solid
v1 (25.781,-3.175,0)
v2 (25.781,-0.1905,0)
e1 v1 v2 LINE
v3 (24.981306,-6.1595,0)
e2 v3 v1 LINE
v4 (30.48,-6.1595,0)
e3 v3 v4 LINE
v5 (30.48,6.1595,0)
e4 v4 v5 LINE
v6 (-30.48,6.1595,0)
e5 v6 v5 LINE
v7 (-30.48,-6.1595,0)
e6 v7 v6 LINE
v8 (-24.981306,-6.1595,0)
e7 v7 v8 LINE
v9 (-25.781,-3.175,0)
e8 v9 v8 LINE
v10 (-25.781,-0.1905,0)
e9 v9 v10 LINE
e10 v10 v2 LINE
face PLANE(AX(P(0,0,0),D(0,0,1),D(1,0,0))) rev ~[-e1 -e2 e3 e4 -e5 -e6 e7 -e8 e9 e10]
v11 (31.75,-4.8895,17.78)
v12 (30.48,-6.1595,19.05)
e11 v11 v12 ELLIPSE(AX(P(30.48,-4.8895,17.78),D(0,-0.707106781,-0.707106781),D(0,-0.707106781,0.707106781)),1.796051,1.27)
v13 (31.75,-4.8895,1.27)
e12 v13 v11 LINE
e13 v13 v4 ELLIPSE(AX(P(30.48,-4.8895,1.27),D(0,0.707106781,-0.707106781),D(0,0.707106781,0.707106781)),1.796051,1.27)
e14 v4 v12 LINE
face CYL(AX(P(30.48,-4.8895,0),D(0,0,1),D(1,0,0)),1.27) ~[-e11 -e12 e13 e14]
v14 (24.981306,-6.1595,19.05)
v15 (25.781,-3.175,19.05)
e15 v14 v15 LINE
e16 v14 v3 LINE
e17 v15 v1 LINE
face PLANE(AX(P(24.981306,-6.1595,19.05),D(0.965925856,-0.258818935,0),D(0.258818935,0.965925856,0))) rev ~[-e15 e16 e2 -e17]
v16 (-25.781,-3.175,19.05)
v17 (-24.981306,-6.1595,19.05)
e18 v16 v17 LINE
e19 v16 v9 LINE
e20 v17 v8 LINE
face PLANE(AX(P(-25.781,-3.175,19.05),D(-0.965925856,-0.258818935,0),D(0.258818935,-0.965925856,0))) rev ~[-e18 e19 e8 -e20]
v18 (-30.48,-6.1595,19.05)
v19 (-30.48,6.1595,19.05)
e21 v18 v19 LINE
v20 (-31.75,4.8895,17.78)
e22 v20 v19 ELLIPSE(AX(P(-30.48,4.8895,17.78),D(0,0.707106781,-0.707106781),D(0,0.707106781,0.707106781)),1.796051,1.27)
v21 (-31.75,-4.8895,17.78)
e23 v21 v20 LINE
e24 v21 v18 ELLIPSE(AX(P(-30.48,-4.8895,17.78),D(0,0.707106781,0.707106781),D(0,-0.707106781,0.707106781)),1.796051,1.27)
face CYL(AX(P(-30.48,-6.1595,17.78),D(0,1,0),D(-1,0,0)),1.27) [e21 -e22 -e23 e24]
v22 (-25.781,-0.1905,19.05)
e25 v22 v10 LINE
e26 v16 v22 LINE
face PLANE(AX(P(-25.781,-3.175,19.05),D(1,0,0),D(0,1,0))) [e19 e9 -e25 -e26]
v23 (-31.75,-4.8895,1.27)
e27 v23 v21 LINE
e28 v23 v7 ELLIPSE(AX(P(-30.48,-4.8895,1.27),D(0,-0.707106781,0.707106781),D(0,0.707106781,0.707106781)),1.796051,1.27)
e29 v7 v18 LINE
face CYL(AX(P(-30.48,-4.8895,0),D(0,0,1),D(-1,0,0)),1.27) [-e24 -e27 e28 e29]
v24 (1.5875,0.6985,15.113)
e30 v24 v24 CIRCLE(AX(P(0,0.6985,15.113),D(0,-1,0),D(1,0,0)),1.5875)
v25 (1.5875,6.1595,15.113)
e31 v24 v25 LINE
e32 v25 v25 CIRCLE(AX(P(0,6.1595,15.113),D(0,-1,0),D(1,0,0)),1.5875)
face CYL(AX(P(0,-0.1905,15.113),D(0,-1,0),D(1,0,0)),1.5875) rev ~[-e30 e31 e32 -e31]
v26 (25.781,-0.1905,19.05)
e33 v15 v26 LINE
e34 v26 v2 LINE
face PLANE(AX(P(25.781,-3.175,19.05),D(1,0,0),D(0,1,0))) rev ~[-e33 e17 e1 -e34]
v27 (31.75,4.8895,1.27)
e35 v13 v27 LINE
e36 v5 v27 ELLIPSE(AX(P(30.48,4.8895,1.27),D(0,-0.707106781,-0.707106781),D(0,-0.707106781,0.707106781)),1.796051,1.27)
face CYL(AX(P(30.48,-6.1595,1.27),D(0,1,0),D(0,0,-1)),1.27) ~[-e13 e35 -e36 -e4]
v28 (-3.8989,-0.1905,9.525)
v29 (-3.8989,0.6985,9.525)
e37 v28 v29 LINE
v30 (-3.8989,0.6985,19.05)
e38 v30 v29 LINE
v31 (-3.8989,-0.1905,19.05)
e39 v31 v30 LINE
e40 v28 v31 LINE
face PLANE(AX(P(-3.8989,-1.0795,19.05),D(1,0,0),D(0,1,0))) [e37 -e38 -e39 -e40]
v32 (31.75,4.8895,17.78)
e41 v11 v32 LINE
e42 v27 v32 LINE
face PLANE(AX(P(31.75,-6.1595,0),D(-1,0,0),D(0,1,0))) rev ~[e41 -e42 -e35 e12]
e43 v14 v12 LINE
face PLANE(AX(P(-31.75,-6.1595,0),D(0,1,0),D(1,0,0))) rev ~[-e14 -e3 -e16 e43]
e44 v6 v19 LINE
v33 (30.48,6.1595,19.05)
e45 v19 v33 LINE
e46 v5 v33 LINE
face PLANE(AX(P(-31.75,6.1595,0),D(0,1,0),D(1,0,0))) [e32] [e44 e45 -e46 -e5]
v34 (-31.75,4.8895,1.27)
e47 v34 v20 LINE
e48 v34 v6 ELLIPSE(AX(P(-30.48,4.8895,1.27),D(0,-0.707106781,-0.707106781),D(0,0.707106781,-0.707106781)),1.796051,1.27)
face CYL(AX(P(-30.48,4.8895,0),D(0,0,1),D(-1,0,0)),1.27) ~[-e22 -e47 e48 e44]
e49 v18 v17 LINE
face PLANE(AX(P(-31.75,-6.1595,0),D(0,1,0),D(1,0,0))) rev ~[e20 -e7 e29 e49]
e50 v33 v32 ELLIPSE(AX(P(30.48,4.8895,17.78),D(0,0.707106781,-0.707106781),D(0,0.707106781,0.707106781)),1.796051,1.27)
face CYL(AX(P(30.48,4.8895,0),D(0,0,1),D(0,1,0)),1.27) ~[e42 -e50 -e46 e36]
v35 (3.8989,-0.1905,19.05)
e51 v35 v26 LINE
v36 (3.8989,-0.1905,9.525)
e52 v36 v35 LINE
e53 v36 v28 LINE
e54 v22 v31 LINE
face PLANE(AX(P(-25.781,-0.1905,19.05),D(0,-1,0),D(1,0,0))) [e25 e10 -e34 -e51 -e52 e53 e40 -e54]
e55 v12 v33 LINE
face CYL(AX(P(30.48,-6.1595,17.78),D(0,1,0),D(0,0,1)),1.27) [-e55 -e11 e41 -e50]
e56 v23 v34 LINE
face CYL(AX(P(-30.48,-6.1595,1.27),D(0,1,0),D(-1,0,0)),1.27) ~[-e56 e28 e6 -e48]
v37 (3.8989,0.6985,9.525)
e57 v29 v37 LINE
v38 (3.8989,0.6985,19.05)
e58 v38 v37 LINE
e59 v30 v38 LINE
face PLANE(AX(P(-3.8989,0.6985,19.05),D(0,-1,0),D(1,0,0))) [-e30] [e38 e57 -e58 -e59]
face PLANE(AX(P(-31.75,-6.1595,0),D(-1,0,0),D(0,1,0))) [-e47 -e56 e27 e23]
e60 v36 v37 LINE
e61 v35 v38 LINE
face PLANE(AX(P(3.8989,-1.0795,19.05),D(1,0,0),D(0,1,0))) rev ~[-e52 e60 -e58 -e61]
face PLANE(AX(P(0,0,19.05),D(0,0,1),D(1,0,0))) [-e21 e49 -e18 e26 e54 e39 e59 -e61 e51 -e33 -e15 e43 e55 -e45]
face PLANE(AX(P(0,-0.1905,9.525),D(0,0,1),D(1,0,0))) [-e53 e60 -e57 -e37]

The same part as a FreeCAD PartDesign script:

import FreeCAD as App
import Part
import Sketcher
Q = App.Units.Quantity


def edges_at(feature, points):
    """Names of the edges that pass closest to the given points."""
    edges = feature.Shape.Edges
    near = lambda p: min(range(len(edges)), key=lambda i: edges[i].distToShape(Part.Vertex(*p))[0])
    return sorted({f"Edge{near(p) + 1}" for p in points})

doc = App.newDocument("Part")
params = doc.addObject("Spreadsheet::Sheet", "Params")
for row, (alias, value) in enumerate([
    ("sketch1_width", "2.5 in"),
    ("sketch1_height", "0.485 in"),
    ("pad1_length", "0.75 in"),
    ("sketch2_width", "2.03 in"),
    ("pocket1_length", "1 in"),
    ("sketch3_height", "0.07 in"),
    ("sketch3_width", "0.307 in"),
    ("pocket2_length", "0.375 in"),
    ("sketch4_diameter", "0.125 in"),
    ("pocket3_length", "1 in"),
    ("fillet_radius", "0.05 in"),
], start=1):
    params.set(f"A{row}", alias)
    params.set(f"B{row}", "=" + value)
    params.setAlias(f"B{row}", alias)

body = doc.addObject("PartDesign::Body", "Body")

# Sketch on XY plane
sketch1 = doc.addObject("Sketcher::SketchObject", "Sketch")
body.addObject(sketch1)
sketch1.AttachmentSupport = (doc.XY_Plane, [""])
sketch1.MapMode = "FlatFace"
sketch1.addGeometry([
    Part.LineSegment(App.Vector(-32, 6, 0), App.Vector(-32, -6, 0)),
    Part.LineSegment(App.Vector(-32, -6, 0), App.Vector(32, -6, 0)),
    Part.LineSegment(App.Vector(32, -6, 0), App.Vector(32, 6, 0)),
    Part.LineSegment(App.Vector(32, 6, 0), App.Vector(-32, 6, 0)),
], False)
sketch1.addConstraint([
    Sketcher.Constraint("Coincident", 0, 2, 1, 1),
    Sketcher.Constraint("Coincident", 1, 2, 2, 1),
    Sketcher.Constraint("Coincident", 2, 2, 3, 1),
    Sketcher.Constraint("Coincident", 3, 2, 0, 1),
    Sketcher.Constraint("Vertical", 0),
    Sketcher.Constraint("Horizontal", 1),
    Sketcher.Constraint("Vertical", 2),
    Sketcher.Constraint("Horizontal", 3),
    Sketcher.Constraint("Symmetric", 0, 2, 2, 2, -1, 1),
    Sketcher.Constraint("DistanceX", 1, 1, 1, 2, Q("2.5 in")),
    Sketcher.Constraint("DistanceY", 0, 2, 0, 1, Q("0.485 in")),
])
sketch1.setExpression("Constraints[9]", "Params.sketch1_width")
sketch1.setExpression("Constraints[10]", "Params.sketch1_height")
pad1 = doc.addObject("PartDesign::Pad", "Pad")
body.addObject(pad1)
pad1.Profile = sketch1
pad1.setExpression("Length", "Params.pad1_length")

# Sketch on XY plane
sketch2 = doc.addObject("Sketcher::SketchObject", "Sketch001")
body.addObject(sketch2)
sketch2.AttachmentSupport = (doc.XY_Plane, [""])
sketch2.MapMode = "FlatFace"
sketch2.AttachmentOffset = App.Placement(App.Vector(0, 0, 0.75 * 25.4), App.Rotation())
sketch2.addGeometry([
    Part.LineSegment(App.Vector(25, -6.2, 0), App.Vector(25.8, -3.2, 0)),  # 0
    Part.LineSegment(App.Vector(25.8, -3.2, 0), App.Vector(25.8, -0.2, 0)),  # 1
    Part.LineSegment(App.Vector(25.8, -0.2, 0), App.Vector(-25.8, -0.2, 0)),  # 2
    Part.LineSegment(App.Vector(-25.8, -0.2, 0), App.Vector(-25.8, -3.2, 0)),  # 3
    Part.LineSegment(App.Vector(-25.8, -3.2, 0), App.Vector(-25, -6.2, 0)),  # 4
    Part.LineSegment(App.Vector(-25, -6.2, 0), App.Vector(25, -6.2, 0)),  # 5
], False)
sketch2.addConstraint([
    Sketcher.Constraint("Coincident", 0, 2, 1, 1),
    Sketcher.Constraint("Coincident", 1, 2, 2, 1),
    Sketcher.Constraint("Coincident", 2, 2, 3, 1),
    Sketcher.Constraint("Coincident", 3, 2, 4, 1),
    Sketcher.Constraint("Coincident", 4, 2, 5, 1),
    Sketcher.Constraint("Coincident", 5, 2, 0, 1),
    Sketcher.Constraint("Vertical", 1),
    Sketcher.Constraint("Horizontal", 2),
    Sketcher.Constraint("Vertical", 3),
    Sketcher.Constraint("Horizontal", 5),
    Sketcher.Constraint("Symmetric", 0, 2, 3, 2, -2),
    Sketcher.Constraint("Equal", 0, 4),
    Sketcher.Constraint("Angle", 0, Q("75.000007 deg")),
    Sketcher.Constraint("DistanceX", 2, 2, 2, 1, Q("2.03 in")),
    Sketcher.Constraint("DistanceY", 1, 1, 1, 2, Q("0.1175 in")),
    Sketcher.Constraint("DistanceY", 0, 2, -1, 1, Q("0.125 in")),
    Sketcher.Constraint("DistanceY", 4, 2, 2, 2, Q("0.235 in")),
])
sketch2.setExpression("Constraints[13]", "Params.sketch2_width")
pocket1 = doc.addObject("PartDesign::Pocket", "Pocket")
body.addObject(pocket1)
pocket1.Profile = sketch2
pocket1.setExpression("Length", "Params.pocket1_length")

# Sketch on XY plane
sketch3 = doc.addObject("Sketcher::SketchObject", "Sketch002")
body.addObject(sketch3)
sketch3.AttachmentSupport = (doc.XY_Plane, [""])
sketch3.MapMode = "FlatFace"
sketch3.AttachmentOffset = App.Placement(App.Vector(0, 0, 0.75 * 25.4), App.Rotation())
sketch3.addGeometry([
    Part.LineSegment(App.Vector(-3.9, 0.7, 0), App.Vector(-3.9, -1.1, 0)),
    Part.LineSegment(App.Vector(-3.9, -1.1, 0), App.Vector(3.9, -1.1, 0)),
    Part.LineSegment(App.Vector(3.9, -1.1, 0), App.Vector(3.9, 0.7, 0)),
    Part.LineSegment(App.Vector(3.9, 0.7, 0), App.Vector(-3.9, 0.7, 0)),
], False)
sketch3.addConstraint([
    Sketcher.Constraint("Coincident", 0, 2, 1, 1),
    Sketcher.Constraint("Coincident", 1, 2, 2, 1),
    Sketcher.Constraint("Coincident", 2, 2, 3, 1),
    Sketcher.Constraint("Coincident", 3, 2, 0, 1),
    Sketcher.Constraint("Vertical", 0),
    Sketcher.Constraint("Horizontal", 1),
    Sketcher.Constraint("Vertical", 2),
    Sketcher.Constraint("Horizontal", 3),
    Sketcher.Constraint("DistanceY", 0, 2, 0, 1, Q("0.07 in")),
    Sketcher.Constraint("DistanceX", 1, 1, 1, 2, Q("0.307 in")),
    Sketcher.Constraint("DistanceX", 0, 2, -1, 1, Q("0.1535 in")),
    Sketcher.Constraint("DistanceY", 0, 2, -1, 1, Q("0.0425 in")),
])
sketch3.setExpression("Constraints[8]", "Params.sketch3_height")
sketch3.setExpression("Constraints[9]", "Params.sketch3_width")
pocket2 = doc.addObject("PartDesign::Pocket", "Pocket001")
body.addObject(pocket2)
pocket2.Profile = sketch3
pocket2.setExpression("Length", "Params.pocket2_length")

# Sketch on XZ plane
sketch4 = doc.addObject("Sketcher::SketchObject", "Sketch003")
body.addObject(sketch4)
sketch4.AttachmentSupport = (doc.XZ_Plane, [""])
sketch4.MapMode = "FlatFace"
sketch4.AttachmentOffset = App.Placement(App.Vector(0, 0, 0.0075 * 25.4), App.Rotation())
sketch4.addGeometry(Part.Circle(App.Vector(0, 15.1, 0), App.Vector(0, 0, 1), 1.6), False)
sketch4.addConstraint([
    Sketcher.Constraint("PointOnObject", 0, 3, -2),
    Sketcher.Constraint("Diameter", 0, Q("0.125 in")),
    Sketcher.Constraint("DistanceY", -1, 1, 0, 3, Q("0.595 in")),
])
sketch4.setExpression("Constraints[1]", "Params.sketch4_diameter")
pocket3 = doc.addObject("PartDesign::Pocket", "Pocket002")
body.addObject(pocket3)
pocket3.Profile = sketch4
pocket3.setExpression("Length", "Params.pocket3_length")
doc.recompute()

fillet = doc.addObject("PartDesign::Fillet", "Fillet")
body.addObject(fillet)
fillet.Base = (pocket3, edges_at(pocket3, [
    (31.75, 6.16, 9.525),
    (-31.75, 0, 0),
    (-31.75, -6.16, 9.525),
    (31.75, -6.16, 9.525),
    (31.75, 0, 0),
    (-31.75, 0, 19.05),
    (31.75, 0, 19.05),
    (-31.75, 6.16, 9.525),
]))
fillet.setExpression("Radius", "Params.fillet_radius")

doc.recompute()
